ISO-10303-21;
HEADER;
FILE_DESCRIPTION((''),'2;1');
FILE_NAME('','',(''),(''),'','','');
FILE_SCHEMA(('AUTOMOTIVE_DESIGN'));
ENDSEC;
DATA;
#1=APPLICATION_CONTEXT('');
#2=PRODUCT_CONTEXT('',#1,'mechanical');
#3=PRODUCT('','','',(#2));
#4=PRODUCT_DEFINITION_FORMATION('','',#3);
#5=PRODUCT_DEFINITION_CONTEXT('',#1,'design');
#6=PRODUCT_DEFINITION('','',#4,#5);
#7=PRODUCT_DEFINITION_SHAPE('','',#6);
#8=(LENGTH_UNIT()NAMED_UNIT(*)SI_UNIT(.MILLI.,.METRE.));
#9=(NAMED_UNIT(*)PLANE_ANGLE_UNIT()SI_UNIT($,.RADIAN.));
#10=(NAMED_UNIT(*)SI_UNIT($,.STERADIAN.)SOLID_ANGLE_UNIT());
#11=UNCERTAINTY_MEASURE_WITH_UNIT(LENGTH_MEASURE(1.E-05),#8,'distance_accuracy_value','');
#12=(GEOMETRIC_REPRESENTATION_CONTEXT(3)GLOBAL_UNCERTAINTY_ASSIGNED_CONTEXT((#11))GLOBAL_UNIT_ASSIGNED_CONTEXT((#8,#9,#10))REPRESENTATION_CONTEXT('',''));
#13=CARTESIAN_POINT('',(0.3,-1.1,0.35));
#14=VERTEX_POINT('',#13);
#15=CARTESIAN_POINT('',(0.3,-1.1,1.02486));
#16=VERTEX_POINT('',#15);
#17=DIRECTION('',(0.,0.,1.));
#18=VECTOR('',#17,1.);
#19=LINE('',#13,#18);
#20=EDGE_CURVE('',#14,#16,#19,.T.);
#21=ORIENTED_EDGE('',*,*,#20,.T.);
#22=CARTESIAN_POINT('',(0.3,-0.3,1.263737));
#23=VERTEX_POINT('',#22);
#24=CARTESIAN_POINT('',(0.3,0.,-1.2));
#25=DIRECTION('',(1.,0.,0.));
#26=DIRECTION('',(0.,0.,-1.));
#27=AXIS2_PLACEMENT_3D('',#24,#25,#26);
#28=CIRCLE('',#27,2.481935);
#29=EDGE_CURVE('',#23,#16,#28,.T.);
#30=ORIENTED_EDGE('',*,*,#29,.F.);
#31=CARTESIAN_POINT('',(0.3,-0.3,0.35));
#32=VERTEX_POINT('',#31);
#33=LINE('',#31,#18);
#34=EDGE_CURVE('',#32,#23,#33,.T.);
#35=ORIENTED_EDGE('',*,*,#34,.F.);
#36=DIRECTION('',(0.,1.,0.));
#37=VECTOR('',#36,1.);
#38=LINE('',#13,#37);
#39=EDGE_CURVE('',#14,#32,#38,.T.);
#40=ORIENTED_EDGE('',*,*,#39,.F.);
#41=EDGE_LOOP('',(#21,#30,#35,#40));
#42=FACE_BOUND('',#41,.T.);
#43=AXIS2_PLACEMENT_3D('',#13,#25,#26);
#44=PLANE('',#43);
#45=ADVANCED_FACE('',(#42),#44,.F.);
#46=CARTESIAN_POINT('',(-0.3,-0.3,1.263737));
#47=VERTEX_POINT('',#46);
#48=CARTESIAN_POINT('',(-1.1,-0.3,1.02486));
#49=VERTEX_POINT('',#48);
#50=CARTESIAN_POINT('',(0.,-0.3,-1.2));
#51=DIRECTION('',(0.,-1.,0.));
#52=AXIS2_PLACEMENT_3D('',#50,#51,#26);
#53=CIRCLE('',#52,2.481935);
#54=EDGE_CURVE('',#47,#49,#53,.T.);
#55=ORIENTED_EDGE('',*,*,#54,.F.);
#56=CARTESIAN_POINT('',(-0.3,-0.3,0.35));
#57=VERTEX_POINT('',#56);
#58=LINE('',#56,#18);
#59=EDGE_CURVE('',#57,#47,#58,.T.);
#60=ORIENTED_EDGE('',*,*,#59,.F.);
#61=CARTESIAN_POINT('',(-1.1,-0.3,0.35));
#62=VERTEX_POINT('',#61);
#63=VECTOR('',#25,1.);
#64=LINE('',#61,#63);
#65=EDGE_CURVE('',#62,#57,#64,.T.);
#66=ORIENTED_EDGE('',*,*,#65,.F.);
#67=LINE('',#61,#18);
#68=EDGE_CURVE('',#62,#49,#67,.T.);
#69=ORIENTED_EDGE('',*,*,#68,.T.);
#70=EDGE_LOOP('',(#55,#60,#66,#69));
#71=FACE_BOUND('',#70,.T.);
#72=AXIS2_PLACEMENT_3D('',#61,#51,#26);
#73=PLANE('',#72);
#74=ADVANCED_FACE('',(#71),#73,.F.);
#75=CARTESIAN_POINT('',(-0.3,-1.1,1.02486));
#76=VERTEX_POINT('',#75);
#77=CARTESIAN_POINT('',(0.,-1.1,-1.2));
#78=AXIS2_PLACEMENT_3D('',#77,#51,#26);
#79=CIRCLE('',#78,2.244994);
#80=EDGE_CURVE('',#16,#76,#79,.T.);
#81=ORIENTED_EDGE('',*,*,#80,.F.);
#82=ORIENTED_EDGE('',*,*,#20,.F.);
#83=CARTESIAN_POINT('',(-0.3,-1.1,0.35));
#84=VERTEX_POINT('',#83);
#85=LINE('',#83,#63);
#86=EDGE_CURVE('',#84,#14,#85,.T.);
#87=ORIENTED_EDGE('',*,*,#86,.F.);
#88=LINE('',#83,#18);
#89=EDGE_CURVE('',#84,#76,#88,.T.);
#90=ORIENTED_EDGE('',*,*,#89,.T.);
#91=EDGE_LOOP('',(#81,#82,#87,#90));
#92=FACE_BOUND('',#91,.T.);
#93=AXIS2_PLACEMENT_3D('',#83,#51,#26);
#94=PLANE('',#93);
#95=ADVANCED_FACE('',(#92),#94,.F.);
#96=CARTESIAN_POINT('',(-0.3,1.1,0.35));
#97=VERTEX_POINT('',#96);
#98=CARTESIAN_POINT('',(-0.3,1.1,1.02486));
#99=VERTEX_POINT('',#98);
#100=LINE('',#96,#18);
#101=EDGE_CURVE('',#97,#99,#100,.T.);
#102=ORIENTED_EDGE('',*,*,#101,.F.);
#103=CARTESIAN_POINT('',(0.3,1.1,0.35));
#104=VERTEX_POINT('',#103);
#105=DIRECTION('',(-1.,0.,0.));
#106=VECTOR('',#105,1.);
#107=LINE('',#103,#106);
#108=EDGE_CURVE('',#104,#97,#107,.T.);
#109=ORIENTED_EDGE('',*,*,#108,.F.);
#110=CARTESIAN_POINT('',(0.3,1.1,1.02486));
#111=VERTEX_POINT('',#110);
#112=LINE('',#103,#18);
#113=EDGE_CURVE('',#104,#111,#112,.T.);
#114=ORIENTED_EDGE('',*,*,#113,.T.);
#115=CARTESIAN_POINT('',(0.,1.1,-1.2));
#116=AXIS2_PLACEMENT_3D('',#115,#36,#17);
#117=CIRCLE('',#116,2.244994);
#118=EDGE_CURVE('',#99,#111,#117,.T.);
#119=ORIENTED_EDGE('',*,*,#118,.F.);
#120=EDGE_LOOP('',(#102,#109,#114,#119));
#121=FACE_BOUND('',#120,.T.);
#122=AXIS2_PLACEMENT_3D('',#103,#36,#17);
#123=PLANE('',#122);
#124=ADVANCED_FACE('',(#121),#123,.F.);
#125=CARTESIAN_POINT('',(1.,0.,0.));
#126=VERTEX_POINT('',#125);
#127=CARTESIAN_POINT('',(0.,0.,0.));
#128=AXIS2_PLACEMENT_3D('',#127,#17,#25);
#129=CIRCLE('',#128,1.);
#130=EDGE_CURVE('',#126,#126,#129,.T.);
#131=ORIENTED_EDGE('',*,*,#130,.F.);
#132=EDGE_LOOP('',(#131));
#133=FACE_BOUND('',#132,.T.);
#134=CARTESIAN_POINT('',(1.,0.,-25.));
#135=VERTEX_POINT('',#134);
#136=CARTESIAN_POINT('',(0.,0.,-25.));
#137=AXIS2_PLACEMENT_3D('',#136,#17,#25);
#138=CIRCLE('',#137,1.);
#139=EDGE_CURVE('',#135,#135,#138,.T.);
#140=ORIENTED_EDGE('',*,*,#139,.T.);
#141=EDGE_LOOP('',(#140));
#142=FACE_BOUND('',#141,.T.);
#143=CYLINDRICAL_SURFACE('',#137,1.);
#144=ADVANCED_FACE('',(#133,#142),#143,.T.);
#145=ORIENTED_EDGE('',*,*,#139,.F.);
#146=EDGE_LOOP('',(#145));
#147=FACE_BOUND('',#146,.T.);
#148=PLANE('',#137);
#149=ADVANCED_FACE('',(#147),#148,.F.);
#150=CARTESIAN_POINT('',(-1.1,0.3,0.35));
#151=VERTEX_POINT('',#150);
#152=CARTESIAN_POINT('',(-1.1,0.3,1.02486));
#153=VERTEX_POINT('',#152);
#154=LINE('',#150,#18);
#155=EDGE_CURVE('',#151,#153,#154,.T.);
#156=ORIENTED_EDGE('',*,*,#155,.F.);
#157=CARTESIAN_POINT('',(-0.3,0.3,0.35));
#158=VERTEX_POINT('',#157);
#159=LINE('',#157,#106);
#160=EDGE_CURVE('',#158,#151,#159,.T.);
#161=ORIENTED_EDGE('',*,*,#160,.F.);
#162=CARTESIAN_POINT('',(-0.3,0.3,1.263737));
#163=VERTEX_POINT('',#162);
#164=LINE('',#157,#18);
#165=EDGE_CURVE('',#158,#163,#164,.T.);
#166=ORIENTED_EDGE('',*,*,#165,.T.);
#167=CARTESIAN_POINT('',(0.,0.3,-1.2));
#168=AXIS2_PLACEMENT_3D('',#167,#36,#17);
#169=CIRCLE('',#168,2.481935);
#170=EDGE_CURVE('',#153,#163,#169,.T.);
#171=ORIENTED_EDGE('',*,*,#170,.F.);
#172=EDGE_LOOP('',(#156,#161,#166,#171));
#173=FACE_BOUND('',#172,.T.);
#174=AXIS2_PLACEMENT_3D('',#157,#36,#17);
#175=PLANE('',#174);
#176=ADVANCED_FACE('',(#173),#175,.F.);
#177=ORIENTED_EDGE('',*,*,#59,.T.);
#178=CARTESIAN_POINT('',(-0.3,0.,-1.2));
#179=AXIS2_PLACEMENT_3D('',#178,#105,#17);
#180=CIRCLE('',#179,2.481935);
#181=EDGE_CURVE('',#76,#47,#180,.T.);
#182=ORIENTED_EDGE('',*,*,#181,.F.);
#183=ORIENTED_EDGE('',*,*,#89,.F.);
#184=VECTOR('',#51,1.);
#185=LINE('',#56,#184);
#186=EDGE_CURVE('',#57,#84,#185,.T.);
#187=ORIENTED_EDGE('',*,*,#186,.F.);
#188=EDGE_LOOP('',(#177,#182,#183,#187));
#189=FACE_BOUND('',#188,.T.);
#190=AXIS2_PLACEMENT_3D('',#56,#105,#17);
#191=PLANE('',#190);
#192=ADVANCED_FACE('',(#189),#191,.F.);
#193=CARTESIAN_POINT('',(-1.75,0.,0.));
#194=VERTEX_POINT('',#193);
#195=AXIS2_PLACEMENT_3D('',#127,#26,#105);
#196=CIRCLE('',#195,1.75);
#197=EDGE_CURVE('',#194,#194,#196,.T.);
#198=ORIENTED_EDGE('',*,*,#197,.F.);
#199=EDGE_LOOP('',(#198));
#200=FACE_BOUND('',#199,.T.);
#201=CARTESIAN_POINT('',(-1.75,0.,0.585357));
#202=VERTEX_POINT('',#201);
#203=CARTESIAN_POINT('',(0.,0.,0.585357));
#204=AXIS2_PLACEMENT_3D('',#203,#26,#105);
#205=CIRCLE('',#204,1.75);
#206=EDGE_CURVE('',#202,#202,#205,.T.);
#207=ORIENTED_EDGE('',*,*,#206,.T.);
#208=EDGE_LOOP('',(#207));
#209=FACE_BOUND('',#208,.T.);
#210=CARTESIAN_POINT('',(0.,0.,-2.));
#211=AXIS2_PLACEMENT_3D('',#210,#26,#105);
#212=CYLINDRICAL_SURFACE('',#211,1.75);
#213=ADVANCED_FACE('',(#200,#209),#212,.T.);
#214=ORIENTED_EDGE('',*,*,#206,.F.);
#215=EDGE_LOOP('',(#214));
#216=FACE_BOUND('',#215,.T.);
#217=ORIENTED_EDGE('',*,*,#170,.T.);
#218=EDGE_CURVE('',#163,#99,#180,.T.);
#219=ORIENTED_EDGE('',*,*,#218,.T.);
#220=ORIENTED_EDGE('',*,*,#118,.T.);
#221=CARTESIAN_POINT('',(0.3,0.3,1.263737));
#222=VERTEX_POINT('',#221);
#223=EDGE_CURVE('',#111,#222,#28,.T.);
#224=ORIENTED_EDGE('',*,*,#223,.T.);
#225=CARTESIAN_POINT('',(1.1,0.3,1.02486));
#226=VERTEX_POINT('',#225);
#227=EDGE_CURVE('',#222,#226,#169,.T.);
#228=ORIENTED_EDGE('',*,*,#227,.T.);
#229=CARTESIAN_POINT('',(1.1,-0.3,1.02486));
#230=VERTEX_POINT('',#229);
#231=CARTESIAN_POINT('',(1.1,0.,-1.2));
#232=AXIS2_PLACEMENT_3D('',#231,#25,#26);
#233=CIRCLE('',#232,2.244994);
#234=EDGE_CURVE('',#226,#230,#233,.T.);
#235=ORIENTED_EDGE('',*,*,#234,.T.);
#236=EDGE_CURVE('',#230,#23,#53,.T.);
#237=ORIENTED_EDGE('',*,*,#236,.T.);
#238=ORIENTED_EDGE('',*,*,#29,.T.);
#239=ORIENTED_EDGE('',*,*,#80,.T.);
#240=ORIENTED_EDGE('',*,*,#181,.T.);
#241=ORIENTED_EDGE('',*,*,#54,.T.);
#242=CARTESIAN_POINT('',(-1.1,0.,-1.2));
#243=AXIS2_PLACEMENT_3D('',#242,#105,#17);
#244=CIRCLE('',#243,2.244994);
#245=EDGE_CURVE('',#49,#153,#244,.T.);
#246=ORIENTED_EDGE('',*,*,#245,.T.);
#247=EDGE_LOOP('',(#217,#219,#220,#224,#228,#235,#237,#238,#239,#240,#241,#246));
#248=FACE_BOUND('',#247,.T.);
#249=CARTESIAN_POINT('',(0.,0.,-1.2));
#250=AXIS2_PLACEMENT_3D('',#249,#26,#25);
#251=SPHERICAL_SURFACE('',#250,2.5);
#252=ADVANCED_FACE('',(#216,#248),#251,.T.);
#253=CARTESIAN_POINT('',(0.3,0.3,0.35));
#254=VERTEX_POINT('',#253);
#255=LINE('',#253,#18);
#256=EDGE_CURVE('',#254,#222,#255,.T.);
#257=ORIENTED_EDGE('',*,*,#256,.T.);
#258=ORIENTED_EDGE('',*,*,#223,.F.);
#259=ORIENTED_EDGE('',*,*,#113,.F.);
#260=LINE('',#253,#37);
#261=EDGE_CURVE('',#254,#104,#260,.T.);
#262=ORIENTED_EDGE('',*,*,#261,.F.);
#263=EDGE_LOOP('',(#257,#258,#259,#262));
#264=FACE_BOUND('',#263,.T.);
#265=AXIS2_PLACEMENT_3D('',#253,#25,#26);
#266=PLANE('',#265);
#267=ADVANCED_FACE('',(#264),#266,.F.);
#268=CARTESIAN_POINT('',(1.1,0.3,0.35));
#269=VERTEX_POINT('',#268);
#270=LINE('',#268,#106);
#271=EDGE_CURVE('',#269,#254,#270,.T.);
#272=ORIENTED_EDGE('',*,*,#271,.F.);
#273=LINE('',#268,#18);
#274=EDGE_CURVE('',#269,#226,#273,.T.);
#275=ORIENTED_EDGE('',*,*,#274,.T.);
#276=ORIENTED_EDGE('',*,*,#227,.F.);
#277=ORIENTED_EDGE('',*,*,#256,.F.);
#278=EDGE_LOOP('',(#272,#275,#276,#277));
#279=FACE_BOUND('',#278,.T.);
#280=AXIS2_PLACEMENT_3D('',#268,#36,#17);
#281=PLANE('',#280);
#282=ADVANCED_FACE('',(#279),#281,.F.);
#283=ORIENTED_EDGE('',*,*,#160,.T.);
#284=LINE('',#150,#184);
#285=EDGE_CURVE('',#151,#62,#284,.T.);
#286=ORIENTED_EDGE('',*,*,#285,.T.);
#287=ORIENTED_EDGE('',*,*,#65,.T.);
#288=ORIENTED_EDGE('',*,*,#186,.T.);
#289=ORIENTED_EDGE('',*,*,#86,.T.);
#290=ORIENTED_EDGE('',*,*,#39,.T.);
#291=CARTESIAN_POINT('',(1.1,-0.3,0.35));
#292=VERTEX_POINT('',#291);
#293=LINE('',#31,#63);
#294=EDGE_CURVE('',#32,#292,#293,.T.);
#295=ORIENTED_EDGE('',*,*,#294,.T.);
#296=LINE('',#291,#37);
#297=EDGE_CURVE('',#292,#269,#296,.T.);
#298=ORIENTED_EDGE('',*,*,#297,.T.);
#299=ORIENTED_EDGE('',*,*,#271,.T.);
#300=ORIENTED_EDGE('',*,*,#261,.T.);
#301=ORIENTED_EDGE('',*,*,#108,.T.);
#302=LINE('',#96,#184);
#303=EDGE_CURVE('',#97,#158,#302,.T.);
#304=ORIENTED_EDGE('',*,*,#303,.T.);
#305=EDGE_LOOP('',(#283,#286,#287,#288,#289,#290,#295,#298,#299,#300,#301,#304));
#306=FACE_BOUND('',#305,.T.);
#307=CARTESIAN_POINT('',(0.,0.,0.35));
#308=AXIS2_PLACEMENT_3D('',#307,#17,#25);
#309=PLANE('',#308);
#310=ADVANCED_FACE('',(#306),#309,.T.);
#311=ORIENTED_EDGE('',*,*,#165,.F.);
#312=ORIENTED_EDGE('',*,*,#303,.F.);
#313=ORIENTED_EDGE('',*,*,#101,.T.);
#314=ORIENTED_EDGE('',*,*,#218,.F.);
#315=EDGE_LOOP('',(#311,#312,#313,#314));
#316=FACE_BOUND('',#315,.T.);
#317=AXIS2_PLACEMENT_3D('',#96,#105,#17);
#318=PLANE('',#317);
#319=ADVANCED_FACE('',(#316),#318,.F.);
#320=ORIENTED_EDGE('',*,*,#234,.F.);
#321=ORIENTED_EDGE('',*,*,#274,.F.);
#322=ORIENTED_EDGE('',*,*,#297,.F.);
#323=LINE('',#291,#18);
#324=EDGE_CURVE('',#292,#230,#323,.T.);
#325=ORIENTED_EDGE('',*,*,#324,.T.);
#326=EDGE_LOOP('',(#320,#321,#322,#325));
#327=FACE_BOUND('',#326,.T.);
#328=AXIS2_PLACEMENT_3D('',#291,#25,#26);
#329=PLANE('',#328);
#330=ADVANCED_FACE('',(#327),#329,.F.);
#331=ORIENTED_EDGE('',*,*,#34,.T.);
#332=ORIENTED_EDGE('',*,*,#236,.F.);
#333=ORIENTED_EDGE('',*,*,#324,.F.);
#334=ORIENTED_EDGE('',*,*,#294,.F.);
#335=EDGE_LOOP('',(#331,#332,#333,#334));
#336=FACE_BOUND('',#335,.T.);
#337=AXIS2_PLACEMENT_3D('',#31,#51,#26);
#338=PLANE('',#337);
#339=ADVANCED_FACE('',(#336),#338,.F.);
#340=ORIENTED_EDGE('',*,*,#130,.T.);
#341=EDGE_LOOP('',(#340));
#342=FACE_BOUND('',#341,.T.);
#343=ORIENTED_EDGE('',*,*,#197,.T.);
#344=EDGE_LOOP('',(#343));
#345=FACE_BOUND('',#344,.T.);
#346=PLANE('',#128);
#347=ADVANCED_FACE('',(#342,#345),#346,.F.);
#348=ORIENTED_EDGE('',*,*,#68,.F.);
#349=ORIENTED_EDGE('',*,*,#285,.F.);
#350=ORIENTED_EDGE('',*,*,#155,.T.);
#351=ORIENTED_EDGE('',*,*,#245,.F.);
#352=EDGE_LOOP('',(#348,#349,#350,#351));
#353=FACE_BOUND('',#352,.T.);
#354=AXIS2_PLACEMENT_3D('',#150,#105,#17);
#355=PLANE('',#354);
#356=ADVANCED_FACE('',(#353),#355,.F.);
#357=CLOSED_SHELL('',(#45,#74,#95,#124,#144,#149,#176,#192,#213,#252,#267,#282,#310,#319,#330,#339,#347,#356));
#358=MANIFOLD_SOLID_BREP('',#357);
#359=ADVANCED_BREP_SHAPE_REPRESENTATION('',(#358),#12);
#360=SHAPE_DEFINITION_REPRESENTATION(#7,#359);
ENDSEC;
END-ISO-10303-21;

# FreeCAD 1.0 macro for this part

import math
import FreeCAD as App
import Part
import Sketcher

doc = App.newDocument("Part")
params = doc.addObject("Spreadsheet::Sheet", "Params")
for row, (alias, value) in enumerate([
    ("sketch1_diameter", "2 mm"),
    ("pad1_length", "25 mm"),
    ("sketch2_radius", "2.5 mm"),
    ("sketch2_height", "1.3 mm"),
    ("sketch2_width", "1.75 mm"),
    ("revolution_angle", "360 deg"),
    ("sketch3_width", "0.6 mm"),
    ("sketch3_width2", "0.8 mm"),
    ("pocket1_length", "0.96 mm"),
], start=1):
    params.set(f"A{row}", alias)
    params.set(f"B{row}", "=" + value)
    params.setAlias(f"B{row}", alias)

body = doc.addObject("PartDesign::Body", "Body")

# Sketch on XY plane
sketch1 = body.newObject("Sketcher::SketchObject", "Sketch")
sketch1.AttachmentSupport = (doc.getObject("XY_Plane"), [""])
sketch1.MapMode = "FlatFace"
sketch1.addGeometry(Part.Circle(App.Vector(0, 0, 0), App.Vector(0, 0, 1), 1), False)
sketch1.addConstraint(Sketcher.Constraint("Coincident", 0, 3, -1, 1))
sketch1.addConstraint(Sketcher.Constraint("Diameter", 0, 2.0))
sketch1.setExpression("Constraints[1]", "Params.sketch1_diameter")
pad1 = body.newObject("PartDesign::Pad", "Pad")
pad1.Profile = sketch1
pad1.setExpression("Length", "Params.pad1_length")
pad1.Reversed = True

# Sketch on XZ plane
sketch2 = body.newObject("Sketcher::SketchObject", "Sketch001")
sketch2.AttachmentSupport = (doc.getObject("XZ_Plane"), [""])
sketch2.MapMode = "FlatFace"
sketch2.addGeometry(Part.LineSegment(App.Vector(1.8, 0, 0), App.Vector(0, 0, 0)), False)
sketch2.addGeometry(Part.LineSegment(App.Vector(0, 0, 0), App.Vector(0, 1.3, 0)), False)
sketch2.addGeometry(Part.ArcOfCircle(Part.Circle(App.Vector(0, -1.2, 0), App.Vector(0, 0, 1), 2.5), math.radians(46), math.radians(90)), False)
sketch2.addGeometry(Part.LineSegment(App.Vector(1.8, 0.6, 0), App.Vector(1.8, 0, 0)), False)
sketch2.addConstraint(Sketcher.Constraint("Coincident", 0, 2, 1, 1))
sketch2.addConstraint(Sketcher.Constraint("Coincident", 1, 2, 2, 2))
sketch2.addConstraint(Sketcher.Constraint("Coincident", 2, 1, 3, 1))
sketch2.addConstraint(Sketcher.Constraint("Coincident", 3, 2, 0, 1))
sketch2.addConstraint(Sketcher.Constraint("Horizontal", 0))
sketch2.addConstraint(Sketcher.Constraint("Vertical", 1))
sketch2.addConstraint(Sketcher.Constraint("Vertical", 3))
sketch2.addConstraint(Sketcher.Constraint("Coincident", 0, 2, -1, 1))
sketch2.addConstraint(Sketcher.Constraint("PointOnObject", 2, 3, -2))
sketch2.addConstraint(Sketcher.Constraint("Radius", 2, 2.5))
sketch2.addConstraint(Sketcher.Constraint("DistanceY", 1, 1, 1, 2, 1.3))
sketch2.addConstraint(Sketcher.Constraint("DistanceX", 0, 2, 0, 1, 1.75))
sketch2.setExpression("Constraints[9]", "Params.sketch2_radius")
sketch2.setExpression("Constraints[10]", "Params.sketch2_height")
sketch2.setExpression("Constraints[11]", "Params.sketch2_width")
revolution = body.newObject("PartDesign::Revolution", "Revolution")
revolution.Profile = sketch2
revolution.ReferenceAxis = (sketch2, ["V_Axis"])
revolution.setExpression("Angle", "Params.revolution_angle")

# Sketch on XY plane
sketch3 = body.newObject("Sketcher::SketchObject", "Sketch002")
sketch3.AttachmentSupport = (doc.getObject("XY_Plane"), [""])
sketch3.MapMode = "FlatFace"
sketch3.AttachmentOffset = App.Placement(App.Vector(0, 0, 1.31), App.Rotation())
sketch3.addGeometry(Part.LineSegment(App.Vector(-0.3, -1.1, 0), App.Vector(0.3, -1.1, 0)), False)
sketch3.addGeometry(Part.LineSegment(App.Vector(0.3, -1.1, 0), App.Vector(0.3, -0.3, 0)), False)
sketch3.addGeometry(Part.LineSegment(App.Vector(0.3, -0.3, 0), App.Vector(1.1, -0.3, 0)), False)
sketch3.addGeometry(Part.LineSegment(App.Vector(1.1, -0.3, 0), App.Vector(1.1, 0.3, 0)), False)
sketch3.addGeometry(Part.LineSegment(App.Vector(1.1, 0.3, 0), App.Vector(0.3, 0.3, 0)), False)
sketch3.addGeometry(Part.LineSegment(App.Vector(0.3, 0.3, 0), App.Vector(0.3, 1.1, 0)), False)
sketch3.addGeometry(Part.LineSegment(App.Vector(0.3, 1.1, 0), App.Vector(-0.3, 1.1, 0)), False)
sketch3.addGeometry(Part.LineSegment(App.Vector(-0.3, 1.1, 0), App.Vector(-0.3, 0.3, 0)), False)
sketch3.addGeometry(Part.LineSegment(App.Vector(-0.3, 0.3, 0), App.Vector(-1.1, 0.3, 0)), False)
sketch3.addGeometry(Part.LineSegment(App.Vector(-1.1, 0.3, 0), App.Vector(-1.1, -0.3, 0)), False)
sketch3.addGeometry(Part.LineSegment(App.Vector(-1.1, -0.3, 0), App.Vector(-0.3, -0.3, 0)), False)
sketch3.addGeometry(Part.LineSegment(App.Vector(-0.3, -0.3, 0), App.Vector(-0.3, -1.1, 0)), False)
sketch3.addConstraint(Sketcher.Constraint("Coincident", 0, 2, 1, 1))
sketch3.addConstraint(Sketcher.Constraint("Coincident", 1, 2, 2, 1))
sketch3.addConstraint(Sketcher.Constraint("Coincident", 2, 2, 3, 1))
sketch3.addConstraint(Sketcher.Constraint("Coincident", 3, 2, 4, 1))
sketch3.addConstraint(Sketcher.Constraint("Coincident", 4, 2, 5, 1))
sketch3.addConstraint(Sketcher.Constraint("Coincident", 5, 2, 6, 1))
sketch3.addConstraint(Sketcher.Constraint("Coincident", 6, 2, 7, 1))
sketch3.addConstraint(Sketcher.Constraint("Coincident", 7, 2, 8, 1))
sketch3.addConstraint(Sketcher.Constraint("Coincident", 8, 2, 9, 1))
sketch3.addConstraint(Sketcher.Constraint("Coincident", 9, 2, 10, 1))
sketch3.addConstraint(Sketcher.Constraint("Coincident", 10, 2, 11, 1))
sketch3.addConstraint(Sketcher.Constraint("Coincident", 11, 2, 0, 1))
sketch3.addConstraint(Sketcher.Constraint("Horizontal", 0))
sketch3.addConstraint(Sketcher.Constraint("Vertical", 1))
sketch3.addConstraint(Sketcher.Constraint("Horizontal", 2))
sketch3.addConstraint(Sketcher.Constraint("Vertical", 3))
sketch3.addConstraint(Sketcher.Constraint("Horizontal", 4))
sketch3.addConstraint(Sketcher.Constraint("Vertical", 5))
sketch3.addConstraint(Sketcher.Constraint("Horizontal", 6))
sketch3.addConstraint(Sketcher.Constraint("Vertical", 7))
sketch3.addConstraint(Sketcher.Constraint("Horizontal", 8))
sketch3.addConstraint(Sketcher.Constraint("Vertical", 9))
sketch3.addConstraint(Sketcher.Constraint("Horizontal", 10))
sketch3.addConstraint(Sketcher.Constraint("Vertical", 11))
sketch3.addConstraint(Sketcher.Constraint("Symmetric", 0, 2, 6, 2, -1, 1))
sketch3.addConstraint(Sketcher.Constraint("Symmetric", 2, 2, 8, 2, -1, 1))
sketch3.addConstraint(Sketcher.Constraint("Symmetric", 4, 2, 10, 2, -1, 1))
sketch3.addConstraint(Sketcher.Constraint("Symmetric", 4, 2, 7, 2, -2))
sketch3.addConstraint(Sketcher.Constraint("Equal", 10, 1))
sketch3.addConstraint(Sketcher.Constraint("Equal", 6, 3))
sketch3.addConstraint(Sketcher.Constraint("DistanceX", 0, 1, 0, 2, 0.6))
sketch3.addConstraint(Sketcher.Constraint("DistanceX", 2, 1, 2, 2, 0.8))
sketch3.setExpression("Constraints[30]", "Params.sketch3_width")
sketch3.setExpression("Constraints[31]", "Params.sketch3_width2")
pocket1 = body.newObject("PartDesign::Pocket", "Pocket")
pocket1.Profile = sketch3
pocket1.setExpression("Length", "Params.pocket1_length")

doc.recompute()
